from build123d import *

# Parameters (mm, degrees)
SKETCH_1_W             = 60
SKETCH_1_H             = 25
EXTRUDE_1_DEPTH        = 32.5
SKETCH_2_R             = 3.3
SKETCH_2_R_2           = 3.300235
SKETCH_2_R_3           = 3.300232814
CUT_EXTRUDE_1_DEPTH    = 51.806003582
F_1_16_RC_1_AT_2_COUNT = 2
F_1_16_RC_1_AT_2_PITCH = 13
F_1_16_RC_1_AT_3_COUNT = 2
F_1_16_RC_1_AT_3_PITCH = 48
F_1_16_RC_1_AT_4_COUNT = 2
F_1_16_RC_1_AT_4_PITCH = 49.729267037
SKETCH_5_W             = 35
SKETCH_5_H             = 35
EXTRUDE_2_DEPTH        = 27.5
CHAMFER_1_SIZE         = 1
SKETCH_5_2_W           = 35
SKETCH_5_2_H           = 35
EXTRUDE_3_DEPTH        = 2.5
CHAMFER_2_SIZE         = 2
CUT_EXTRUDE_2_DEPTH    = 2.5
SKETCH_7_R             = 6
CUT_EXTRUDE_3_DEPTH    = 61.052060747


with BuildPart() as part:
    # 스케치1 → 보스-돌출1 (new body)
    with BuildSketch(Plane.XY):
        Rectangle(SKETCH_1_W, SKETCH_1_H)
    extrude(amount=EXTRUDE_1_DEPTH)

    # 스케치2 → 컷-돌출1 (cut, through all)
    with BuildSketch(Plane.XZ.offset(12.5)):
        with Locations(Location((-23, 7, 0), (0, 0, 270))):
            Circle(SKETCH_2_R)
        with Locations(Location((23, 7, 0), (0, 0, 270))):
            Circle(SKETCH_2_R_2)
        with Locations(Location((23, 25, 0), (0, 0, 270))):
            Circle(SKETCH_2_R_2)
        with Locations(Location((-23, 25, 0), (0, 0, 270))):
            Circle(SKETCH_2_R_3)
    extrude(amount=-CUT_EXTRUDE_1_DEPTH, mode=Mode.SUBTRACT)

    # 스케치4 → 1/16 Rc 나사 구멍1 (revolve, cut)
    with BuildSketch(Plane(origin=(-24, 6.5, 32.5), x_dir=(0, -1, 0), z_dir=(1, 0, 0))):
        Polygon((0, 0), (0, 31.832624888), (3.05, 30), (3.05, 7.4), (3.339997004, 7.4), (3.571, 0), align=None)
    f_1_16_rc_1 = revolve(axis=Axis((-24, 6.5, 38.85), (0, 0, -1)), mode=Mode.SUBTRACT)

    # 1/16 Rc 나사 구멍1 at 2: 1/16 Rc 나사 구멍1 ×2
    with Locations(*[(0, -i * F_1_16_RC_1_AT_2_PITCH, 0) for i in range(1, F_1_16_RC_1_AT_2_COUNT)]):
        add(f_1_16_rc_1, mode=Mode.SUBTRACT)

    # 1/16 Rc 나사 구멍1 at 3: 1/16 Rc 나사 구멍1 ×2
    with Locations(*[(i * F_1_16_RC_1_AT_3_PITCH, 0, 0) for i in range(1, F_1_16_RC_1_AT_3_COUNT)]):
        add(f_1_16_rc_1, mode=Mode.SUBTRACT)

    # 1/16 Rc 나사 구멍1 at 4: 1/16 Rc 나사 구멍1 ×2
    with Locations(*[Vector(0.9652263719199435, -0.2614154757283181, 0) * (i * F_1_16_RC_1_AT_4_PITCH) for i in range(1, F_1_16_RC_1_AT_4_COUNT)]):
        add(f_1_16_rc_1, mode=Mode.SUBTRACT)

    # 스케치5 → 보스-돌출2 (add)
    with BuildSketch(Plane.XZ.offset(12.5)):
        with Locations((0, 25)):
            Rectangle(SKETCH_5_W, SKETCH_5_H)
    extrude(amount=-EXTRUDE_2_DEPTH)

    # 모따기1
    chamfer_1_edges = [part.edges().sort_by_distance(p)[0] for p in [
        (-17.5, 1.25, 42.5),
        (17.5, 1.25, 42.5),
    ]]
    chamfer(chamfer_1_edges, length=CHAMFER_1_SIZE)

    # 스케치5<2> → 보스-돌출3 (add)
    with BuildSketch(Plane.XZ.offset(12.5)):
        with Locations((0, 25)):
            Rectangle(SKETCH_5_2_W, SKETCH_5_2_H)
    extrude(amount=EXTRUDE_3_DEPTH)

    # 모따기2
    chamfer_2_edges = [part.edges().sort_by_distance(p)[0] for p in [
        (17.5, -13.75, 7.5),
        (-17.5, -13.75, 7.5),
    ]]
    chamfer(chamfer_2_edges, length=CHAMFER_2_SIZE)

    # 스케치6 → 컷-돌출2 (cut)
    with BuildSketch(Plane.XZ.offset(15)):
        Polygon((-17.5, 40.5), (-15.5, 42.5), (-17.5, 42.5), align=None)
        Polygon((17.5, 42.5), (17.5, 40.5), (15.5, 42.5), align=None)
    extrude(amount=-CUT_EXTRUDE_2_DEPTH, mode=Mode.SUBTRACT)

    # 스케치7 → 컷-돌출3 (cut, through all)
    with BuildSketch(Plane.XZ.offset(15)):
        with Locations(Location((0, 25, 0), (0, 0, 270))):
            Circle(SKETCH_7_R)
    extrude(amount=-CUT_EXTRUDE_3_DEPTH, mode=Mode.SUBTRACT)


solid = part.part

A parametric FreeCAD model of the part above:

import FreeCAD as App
import Part
import Sketcher
Q = App.Units.Quantity


def edges_at(feature, points):
    """Names of the edges that pass closest to the given points."""
    edges = feature.Shape.Edges
    near = lambda p: min(range(len(edges)), key=lambda i: edges[i].distToShape(Part.Vertex(*p))[0])
    return sorted({f"Edge{near(p) + 1}" for p in points})

doc = App.newDocument("Part")
body = doc.addObject("PartDesign::Body", "Body")

# Sketch on XY plane
sketch1 = body.newObject("Sketcher::SketchObject", "Sketch")
sketch1.AttachmentSupport = (doc.getObject("XY_Plane"), [""])
sketch1.MapMode = "FlatFace"
sketch1.addGeometry(Part.LineSegment(App.Vector(-30, 12.5, 0), App.Vector(-30, -12.5, 0)), False)
sketch1.addGeometry(Part.LineSegment(App.Vector(-30, -12.5, 0), App.Vector(30, -12.5, 0)), False)
sketch1.addGeometry(Part.LineSegment(App.Vector(30, -12.5, 0), App.Vector(30, 12.5, 0)), False)
sketch1.addGeometry(Part.LineSegment(App.Vector(30, 12.5, 0), App.Vector(-30, 12.5, 0)), False)
sketch1.addConstraint(Sketcher.Constraint("Coincident", 0, 2, 1, 1))
sketch1.addConstraint(Sketcher.Constraint("Coincident", 1, 2, 2, 1))
sketch1.addConstraint(Sketcher.Constraint("Coincident", 2, 2, 3, 1))
sketch1.addConstraint(Sketcher.Constraint("Coincident", 3, 2, 0, 1))
sketch1.addConstraint(Sketcher.Constraint("Vertical", 0))
sketch1.addConstraint(Sketcher.Constraint("Horizontal", 1))
sketch1.addConstraint(Sketcher.Constraint("Vertical", 2))
sketch1.addConstraint(Sketcher.Constraint("Horizontal", 3))
sketch1.addConstraint(Sketcher.Constraint("Symmetric", 0, 2, 2, 2, -1, 1))
sketch1.addConstraint(Sketcher.Constraint("DistanceX", 1, 1, 1, 2, 60.0))
sketch1.addConstraint(Sketcher.Constraint("DistanceY", 0, 2, 0, 1, 25.0))
pad1 = body.newObject("PartDesign::Pad", "Pad")
pad1.Profile = sketch1
pad1.Length = 32.5

# Sketch on XZ plane
sketch2 = body.newObject("Sketcher::SketchObject", "Sketch001")
sketch2.AttachmentSupport = (doc.getObject("XZ_Plane"), [""])
sketch2.MapMode = "FlatFace"
sketch2.AttachmentOffset = App.Placement(App.Vector(0, 0, 12.5), App.Rotation())
sketch2.addGeometry(Part.Circle(App.Vector(-23, 7, 0), App.Vector(0, 0, 1), 3.3), False)
sketch2.addGeometry(Part.Circle(App.Vector(23, 7, 0), App.Vector(0, 0, 1), 3.300235), False)
sketch2.addGeometry(Part.Circle(App.Vector(23, 25, 0), App.Vector(0, 0, 1), 3.300235), False)
sketch2.addGeometry(Part.Circle(App.Vector(-23, 25, 0), App.Vector(0, 0, 1), 3.300233), False)
sketch2.addConstraint(Sketcher.Constraint("Equal", 1, 2))
sketch2.addConstraint(Sketcher.Constraint("Symmetric", 0, 3, 1, 3, -2))
sketch2.addConstraint(Sketcher.Constraint("Symmetric", 2, 3, 3, 3, -2))
sketch2.addConstraint(Sketcher.Constraint("Vertical", 1, 3, 2, 3))
sketch2.addConstraint(Sketcher.Constraint("Diameter", 0, 6.6))
sketch2.addConstraint(Sketcher.Constraint("DistanceX", 0, 3, -1, 1, 23.0))
sketch2.addConstraint(Sketcher.Constraint("DistanceY", -1, 1, 0, 3, 7.0))
sketch2.addConstraint(Sketcher.Constraint("DistanceY", -1, 1, 2, 3, 25.0))
sketch2.addConstraint(Sketcher.Constraint("Diameter", 1, 6.60047))
sketch2.addConstraint(Sketcher.Constraint("Diameter", 3, 6.600466))
pocket1 = body.newObject("PartDesign::Pocket", "Pocket")
pocket1.Profile = sketch2
pocket1.Type = "ThroughAll"

# Sketch on YZ plane
sketch3 = body.newObject("Sketcher::SketchObject", "Sketch002")
sketch3.AttachmentSupport = (doc.getObject("YZ_Plane"), [""])
sketch3.MapMode = "FlatFace"
sketch3.AttachmentOffset = App.Placement(App.Vector(0, 0, -24), App.Rotation())
sketch3.addGeometry(Part.LineSegment(App.Vector(6.5, 0.667375, 0), App.Vector(6.5, 32.5, 0)), False)
sketch3.addGeometry(Part.LineSegment(App.Vector(6.5, 32.5, 0), App.Vector(2.929, 32.5, 0)), False)
sketch3.addGeometry(Part.LineSegment(App.Vector(2.929, 32.5, 0), App.Vector(3.160003, 25.1, 0)), False)
sketch3.addGeometry(Part.LineSegment(App.Vector(3.160003, 25.1, 0), App.Vector(3.45, 25.1, 0)), False)
sketch3.addGeometry(Part.LineSegment(App.Vector(3.45, 25.1, 0), App.Vector(3.45, 2.5, 0)), False)
sketch3.addGeometry(Part.LineSegment(App.Vector(3.45, 2.5, 0), App.Vector(6.5, 0.667375, 0)), False)
sketch3.addGeometry(Part.LineSegment(App.Vector(6.5, 32.5, 0), App.Vector(6.5, 0.667375, 0)), True)  # axis
sketch3.addConstraint(Sketcher.Constraint("Coincident", 0, 2, 1, 1))
sketch3.addConstraint(Sketcher.Constraint("Coincident", 1, 2, 2, 1))
sketch3.addConstraint(Sketcher.Constraint("Coincident", 2, 2, 3, 1))
sketch3.addConstraint(Sketcher.Constraint("Coincident", 3, 2, 4, 1))
sketch3.addConstraint(Sketcher.Constraint("Coincident", 4, 2, 5, 1))
sketch3.addConstraint(Sketcher.Constraint("Coincident", 5, 2, 0, 1))
sketch3.addConstraint(Sketcher.Constraint("Vertical", 0))
sketch3.addConstraint(Sketcher.Constraint("Horizontal", 1))
sketch3.addConstraint(Sketcher.Constraint("Horizontal", 3))
sketch3.addConstraint(Sketcher.Constraint("Vertical", 4))
sketch3.addConstraint(Sketcher.Constraint("Vertical", 6))
sketch3.addConstraint(Sketcher.Constraint("Coincident", 6, 1, 0, 2))
sketch3.addConstraint(Sketcher.Constraint("Equal", 0, 6))
sketch3.addConstraint(Sketcher.Constraint("Angle", 5, Q("-31 deg")))
sketch3.addConstraint(Sketcher.Constraint("DistanceY", 4, 2, 4, 1, 22.6))
sketch3.addConstraint(Sketcher.Constraint("DistanceY", 4, 2, 1, 2, 30.0))
sketch3.addConstraint(Sketcher.Constraint("DistanceX", -1, 1, 0, 2, 6.5))
sketch3.addConstraint(Sketcher.Constraint("DistanceY", -1, 1, 0, 2, 32.5))
sketch3.addConstraint(Sketcher.Constraint("DistanceX", 1, 2, 1, 1, 3.571))
sketch3.addConstraint(Sketcher.Constraint("DistanceX", -1, 1, 3, 2, 3.45))
sketch3.addConstraint(Sketcher.Constraint("DistanceX", 3, 1, 3, 2, 0.289997))
groove = body.newObject("PartDesign::Groove", "Groove")
groove.Profile = sketch3
groove.ReferenceAxis = (sketch3, ["Axis0"])
groove.Angle = 360
doc.recompute()

linearpattern = body.newObject("PartDesign::LinearPattern", "LinearPattern")
linearpattern.Originals = [groove]
linearpattern.Direction = (doc.getObject("Y_Axis"), [""])
linearpattern.Mode = "offset"
linearpattern.Offset = 13
linearpattern.Occurrences = 2
linearpattern.Reversed = True
body.Tip = linearpattern
doc.recompute()

linearpattern2 = body.newObject("PartDesign::LinearPattern", "LinearPattern001")
linearpattern2.Originals = [groove]
linearpattern2.Direction = (doc.getObject("X_Axis"), [""])
linearpattern2.Mode = "offset"
linearpattern2.Offset = 48
linearpattern2.Occurrences = 2
body.Tip = linearpattern2
doc.recompute()

datumline = body.newObject("PartDesign::Line", "DatumLine")
datumline.Placement = App.Placement(App.Vector(0, 0, 0), App.Rotation(App.Vector(0, 0, 1), App.Vector(0.965226372, -0.261415476, 0)))
linearpattern3 = body.newObject("PartDesign::LinearPattern", "LinearPattern002")
linearpattern3.Originals = [groove]
linearpattern3.Direction = (datumline, [""])
linearpattern3.Mode = "offset"
linearpattern3.Offset = 49.729267
linearpattern3.Occurrences = 2
body.Tip = linearpattern3

# Sketch on XZ plane
sketch4 = body.newObject("Sketcher::SketchObject", "Sketch003")
sketch4.AttachmentSupport = (doc.getObject("XZ_Plane"), [""])
sketch4.MapMode = "FlatFace"
sketch4.AttachmentOffset = App.Placement(App.Vector(0, 0, 12.5), App.Rotation())
sketch4.addGeometry(Part.LineSegment(App.Vector(-17.5, 42.5, 0), App.Vector(-17.5, 7.5, 0)), False)
sketch4.addGeometry(Part.LineSegment(App.Vector(-17.5, 7.5, 0), App.Vector(17.5, 7.5, 0)), False)
sketch4.addGeometry(Part.LineSegment(App.Vector(17.5, 7.5, 0), App.Vector(17.5, 42.5, 0)), False)
sketch4.addGeometry(Part.LineSegment(App.Vector(17.5, 42.5, 0), App.Vector(-17.5, 42.5, 0)), False)
sketch4.addConstraint(Sketcher.Constraint("Coincident", 0, 2, 1, 1))
sketch4.addConstraint(Sketcher.Constraint("Coincident", 1, 2, 2, 1))
sketch4.addConstraint(Sketcher.Constraint("Coincident", 2, 2, 3, 1))
sketch4.addConstraint(Sketcher.Constraint("Coincident", 3, 2, 0, 1))
sketch4.addConstraint(Sketcher.Constraint("Vertical", 0))
sketch4.addConstraint(Sketcher.Constraint("Horizontal", 1))
sketch4.addConstraint(Sketcher.Constraint("Vertical", 2))
sketch4.addConstraint(Sketcher.Constraint("Horizontal", 3))
sketch4.addConstraint(Sketcher.Constraint("Equal", 3, 0))
sketch4.addConstraint(Sketcher.Constraint("DistanceX", 1, 1, 1, 2, 35.0))
sketch4.addConstraint(Sketcher.Constraint("DistanceX", 0, 2, -1, 1, 17.5))
sketch4.addConstraint(Sketcher.Constraint("DistanceY", -1, 1, 0, 2, 7.5))
pad2 = body.newObject("PartDesign::Pad", "Pad001")
pad2.Profile = sketch4
pad2.Length = 27.5
pad2.Reversed = True
doc.recompute()

chamfer = body.newObject("PartDesign::Chamfer", "Chamfer")
chamfer.Base = (pad2, edges_at(pad2, [(-17.5, 1.25, 42.5), (17.5, 1.25, 42.5)]))
chamfer.Size = 1

# Sketch on XZ plane
sketch5 = body.newObject("Sketcher::SketchObject", "Sketch004")
sketch5.AttachmentSupport = (doc.getObject("XZ_Plane"), [""])
sketch5.MapMode = "FlatFace"
sketch5.AttachmentOffset = App.Placement(App.Vector(0, 0, 12.5), App.Rotation())
sketch5.addGeometry(Part.LineSegment(App.Vector(-17.5, 42.5, 0), App.Vector(-17.5, 7.5, 0)), False)
sketch5.addGeometry(Part.LineSegment(App.Vector(-17.5, 7.5, 0), App.Vector(17.5, 7.5, 0)), False)
sketch5.addGeometry(Part.LineSegment(App.Vector(17.5, 7.5, 0), App.Vector(17.5, 42.5, 0)), False)
sketch5.addGeometry(Part.LineSegment(App.Vector(17.5, 42.5, 0), App.Vector(-17.5, 42.5, 0)), False)
sketch5.addConstraint(Sketcher.Constraint("Coincident", 0, 2, 1, 1))
sketch5.addConstraint(Sketcher.Constraint("Coincident", 1, 2, 2, 1))
sketch5.addConstraint(Sketcher.Constraint("Coincident", 2, 2, 3, 1))
sketch5.addConstraint(Sketcher.Constraint("Coincident", 3, 2, 0, 1))
sketch5.addConstraint(Sketcher.Constraint("Vertical", 0))
sketch5.addConstraint(Sketcher.Constraint("Horizontal", 1))
sketch5.addConstraint(Sketcher.Constraint("Vertical", 2))
sketch5.addConstraint(Sketcher.Constraint("Horizontal", 3))
sketch5.addConstraint(Sketcher.Constraint("Equal", 3, 0))
sketch5.addConstraint(Sketcher.Constraint("DistanceX", 1, 1, 1, 2, 35.0))
sketch5.addConstraint(Sketcher.Constraint("DistanceX", 0, 2, -1, 1, 17.5))
sketch5.addConstraint(Sketcher.Constraint("DistanceY", -1, 1, 0, 2, 7.5))
pad3 = body.newObject("PartDesign::Pad", "Pad002")
pad3.Profile = sketch5
pad3.Length = 2.5
doc.recompute()

chamfer2 = body.newObject("PartDesign::Chamfer", "Chamfer001")
chamfer2.Base = (pad3, edges_at(pad3, [(17.5, -13.75, 7.5), (-17.5, -13.75, 7.5)]))
chamfer2.Size = 2

# Sketch on XZ plane
sketch6 = body.newObject("Sketcher::SketchObject", "Sketch005")
sketch6.AttachmentSupport = (doc.getObject("XZ_Plane"), [""])
sketch6.MapMode = "FlatFace"
sketch6.AttachmentOffset = App.Placement(App.Vector(0, 0, 15), App.Rotation())
sketch6.addGeometry(Part.LineSegment(App.Vector(-17.5, 40.5, 0), App.Vector(-15.5, 42.5, 0)), False)
sketch6.addGeometry(Part.LineSegment(App.Vector(-15.5, 42.5, 0), App.Vector(-17.5, 42.5, 0)), False)
sketch6.addGeometry(Part.LineSegment(App.Vector(-17.5, 42.5, 0), App.Vector(-17.5, 40.5, 0)), False)
sketch6.addGeometry(Part.LineSegment(App.Vector(17.5, 40.5, 0), App.Vector(17.5, 42.5, 0)), False)
sketch6.addGeometry(Part.LineSegment(App.Vector(17.5, 42.5, 0), App.Vector(15.5, 42.5, 0)), False)
sketch6.addGeometry(Part.LineSegment(App.Vector(15.5, 42.5, 0), App.Vector(17.5, 40.5, 0)), False)
sketch6.addConstraint(Sketcher.Constraint("Coincident", 0, 2, 1, 1))
sketch6.addConstraint(Sketcher.Constraint("Coincident", 1, 2, 2, 1))
sketch6.addConstraint(Sketcher.Constraint("Coincident", 2, 2, 0, 1))
sketch6.addConstraint(Sketcher.Constraint("Coincident", 3, 2, 4, 1))
sketch6.addConstraint(Sketcher.Constraint("Coincident", 4, 2, 5, 1))
sketch6.addConstraint(Sketcher.Constraint("Coincident", 5, 2, 3, 1))
sketch6.addConstraint(Sketcher.Constraint("Horizontal", 1))
sketch6.addConstraint(Sketcher.Constraint("Vertical", 2))
sketch6.addConstraint(Sketcher.Constraint("Vertical", 3))
sketch6.addConstraint(Sketcher.Constraint("Horizontal", 4))
sketch6.addConstraint(Sketcher.Constraint("Symmetric", 1, 2, 3, 2, -2))
sketch6.addConstraint(Sketcher.Constraint("Perpendicular", 0, 5))
sketch6.addConstraint(Sketcher.Constraint("Horizontal", 2, 2, 5, 2))
sketch6.addConstraint(Sketcher.Constraint("Equal", 1, 4))
sketch6.addConstraint(Sketcher.Constraint("DistanceX", 1, 2, 1, 1, 2.0))
sketch6.addConstraint(Sketcher.Constraint("DistanceX", 0, 2, 3, 2, 33.0))
sketch6.addConstraint(Sketcher.Constraint("DistanceY", -1, 1, 0, 2, 42.5))
pocket2 = body.newObject("PartDesign::Pocket", "Pocket001")
pocket2.Profile = sketch6
pocket2.Length = 2.5

# Sketch on XZ plane
sketch7 = body.newObject("Sketcher::SketchObject", "Sketch006")
sketch7.AttachmentSupport = (doc.getObject("XZ_Plane"), [""])
sketch7.MapMode = "FlatFace"
sketch7.AttachmentOffset = App.Placement(App.Vector(0, 0, 15), App.Rotation())
sketch7.addGeometry(Part.Circle(App.Vector(0, 25, 0), App.Vector(0, 0, 1), 6), False)
sketch7.addConstraint(Sketcher.Constraint("PointOnObject", 0, 3, -2))
sketch7.addConstraint(Sketcher.Constraint("Diameter", 0, 12.0))
sketch7.addConstraint(Sketcher.Constraint("DistanceY", -1, 1, 0, 3, 25.0))
pocket3 = body.newObject("PartDesign::Pocket", "Pocket002")
pocket3.Profile = sketch7
pocket3.Type = "ThroughAll"

doc.recompute()
